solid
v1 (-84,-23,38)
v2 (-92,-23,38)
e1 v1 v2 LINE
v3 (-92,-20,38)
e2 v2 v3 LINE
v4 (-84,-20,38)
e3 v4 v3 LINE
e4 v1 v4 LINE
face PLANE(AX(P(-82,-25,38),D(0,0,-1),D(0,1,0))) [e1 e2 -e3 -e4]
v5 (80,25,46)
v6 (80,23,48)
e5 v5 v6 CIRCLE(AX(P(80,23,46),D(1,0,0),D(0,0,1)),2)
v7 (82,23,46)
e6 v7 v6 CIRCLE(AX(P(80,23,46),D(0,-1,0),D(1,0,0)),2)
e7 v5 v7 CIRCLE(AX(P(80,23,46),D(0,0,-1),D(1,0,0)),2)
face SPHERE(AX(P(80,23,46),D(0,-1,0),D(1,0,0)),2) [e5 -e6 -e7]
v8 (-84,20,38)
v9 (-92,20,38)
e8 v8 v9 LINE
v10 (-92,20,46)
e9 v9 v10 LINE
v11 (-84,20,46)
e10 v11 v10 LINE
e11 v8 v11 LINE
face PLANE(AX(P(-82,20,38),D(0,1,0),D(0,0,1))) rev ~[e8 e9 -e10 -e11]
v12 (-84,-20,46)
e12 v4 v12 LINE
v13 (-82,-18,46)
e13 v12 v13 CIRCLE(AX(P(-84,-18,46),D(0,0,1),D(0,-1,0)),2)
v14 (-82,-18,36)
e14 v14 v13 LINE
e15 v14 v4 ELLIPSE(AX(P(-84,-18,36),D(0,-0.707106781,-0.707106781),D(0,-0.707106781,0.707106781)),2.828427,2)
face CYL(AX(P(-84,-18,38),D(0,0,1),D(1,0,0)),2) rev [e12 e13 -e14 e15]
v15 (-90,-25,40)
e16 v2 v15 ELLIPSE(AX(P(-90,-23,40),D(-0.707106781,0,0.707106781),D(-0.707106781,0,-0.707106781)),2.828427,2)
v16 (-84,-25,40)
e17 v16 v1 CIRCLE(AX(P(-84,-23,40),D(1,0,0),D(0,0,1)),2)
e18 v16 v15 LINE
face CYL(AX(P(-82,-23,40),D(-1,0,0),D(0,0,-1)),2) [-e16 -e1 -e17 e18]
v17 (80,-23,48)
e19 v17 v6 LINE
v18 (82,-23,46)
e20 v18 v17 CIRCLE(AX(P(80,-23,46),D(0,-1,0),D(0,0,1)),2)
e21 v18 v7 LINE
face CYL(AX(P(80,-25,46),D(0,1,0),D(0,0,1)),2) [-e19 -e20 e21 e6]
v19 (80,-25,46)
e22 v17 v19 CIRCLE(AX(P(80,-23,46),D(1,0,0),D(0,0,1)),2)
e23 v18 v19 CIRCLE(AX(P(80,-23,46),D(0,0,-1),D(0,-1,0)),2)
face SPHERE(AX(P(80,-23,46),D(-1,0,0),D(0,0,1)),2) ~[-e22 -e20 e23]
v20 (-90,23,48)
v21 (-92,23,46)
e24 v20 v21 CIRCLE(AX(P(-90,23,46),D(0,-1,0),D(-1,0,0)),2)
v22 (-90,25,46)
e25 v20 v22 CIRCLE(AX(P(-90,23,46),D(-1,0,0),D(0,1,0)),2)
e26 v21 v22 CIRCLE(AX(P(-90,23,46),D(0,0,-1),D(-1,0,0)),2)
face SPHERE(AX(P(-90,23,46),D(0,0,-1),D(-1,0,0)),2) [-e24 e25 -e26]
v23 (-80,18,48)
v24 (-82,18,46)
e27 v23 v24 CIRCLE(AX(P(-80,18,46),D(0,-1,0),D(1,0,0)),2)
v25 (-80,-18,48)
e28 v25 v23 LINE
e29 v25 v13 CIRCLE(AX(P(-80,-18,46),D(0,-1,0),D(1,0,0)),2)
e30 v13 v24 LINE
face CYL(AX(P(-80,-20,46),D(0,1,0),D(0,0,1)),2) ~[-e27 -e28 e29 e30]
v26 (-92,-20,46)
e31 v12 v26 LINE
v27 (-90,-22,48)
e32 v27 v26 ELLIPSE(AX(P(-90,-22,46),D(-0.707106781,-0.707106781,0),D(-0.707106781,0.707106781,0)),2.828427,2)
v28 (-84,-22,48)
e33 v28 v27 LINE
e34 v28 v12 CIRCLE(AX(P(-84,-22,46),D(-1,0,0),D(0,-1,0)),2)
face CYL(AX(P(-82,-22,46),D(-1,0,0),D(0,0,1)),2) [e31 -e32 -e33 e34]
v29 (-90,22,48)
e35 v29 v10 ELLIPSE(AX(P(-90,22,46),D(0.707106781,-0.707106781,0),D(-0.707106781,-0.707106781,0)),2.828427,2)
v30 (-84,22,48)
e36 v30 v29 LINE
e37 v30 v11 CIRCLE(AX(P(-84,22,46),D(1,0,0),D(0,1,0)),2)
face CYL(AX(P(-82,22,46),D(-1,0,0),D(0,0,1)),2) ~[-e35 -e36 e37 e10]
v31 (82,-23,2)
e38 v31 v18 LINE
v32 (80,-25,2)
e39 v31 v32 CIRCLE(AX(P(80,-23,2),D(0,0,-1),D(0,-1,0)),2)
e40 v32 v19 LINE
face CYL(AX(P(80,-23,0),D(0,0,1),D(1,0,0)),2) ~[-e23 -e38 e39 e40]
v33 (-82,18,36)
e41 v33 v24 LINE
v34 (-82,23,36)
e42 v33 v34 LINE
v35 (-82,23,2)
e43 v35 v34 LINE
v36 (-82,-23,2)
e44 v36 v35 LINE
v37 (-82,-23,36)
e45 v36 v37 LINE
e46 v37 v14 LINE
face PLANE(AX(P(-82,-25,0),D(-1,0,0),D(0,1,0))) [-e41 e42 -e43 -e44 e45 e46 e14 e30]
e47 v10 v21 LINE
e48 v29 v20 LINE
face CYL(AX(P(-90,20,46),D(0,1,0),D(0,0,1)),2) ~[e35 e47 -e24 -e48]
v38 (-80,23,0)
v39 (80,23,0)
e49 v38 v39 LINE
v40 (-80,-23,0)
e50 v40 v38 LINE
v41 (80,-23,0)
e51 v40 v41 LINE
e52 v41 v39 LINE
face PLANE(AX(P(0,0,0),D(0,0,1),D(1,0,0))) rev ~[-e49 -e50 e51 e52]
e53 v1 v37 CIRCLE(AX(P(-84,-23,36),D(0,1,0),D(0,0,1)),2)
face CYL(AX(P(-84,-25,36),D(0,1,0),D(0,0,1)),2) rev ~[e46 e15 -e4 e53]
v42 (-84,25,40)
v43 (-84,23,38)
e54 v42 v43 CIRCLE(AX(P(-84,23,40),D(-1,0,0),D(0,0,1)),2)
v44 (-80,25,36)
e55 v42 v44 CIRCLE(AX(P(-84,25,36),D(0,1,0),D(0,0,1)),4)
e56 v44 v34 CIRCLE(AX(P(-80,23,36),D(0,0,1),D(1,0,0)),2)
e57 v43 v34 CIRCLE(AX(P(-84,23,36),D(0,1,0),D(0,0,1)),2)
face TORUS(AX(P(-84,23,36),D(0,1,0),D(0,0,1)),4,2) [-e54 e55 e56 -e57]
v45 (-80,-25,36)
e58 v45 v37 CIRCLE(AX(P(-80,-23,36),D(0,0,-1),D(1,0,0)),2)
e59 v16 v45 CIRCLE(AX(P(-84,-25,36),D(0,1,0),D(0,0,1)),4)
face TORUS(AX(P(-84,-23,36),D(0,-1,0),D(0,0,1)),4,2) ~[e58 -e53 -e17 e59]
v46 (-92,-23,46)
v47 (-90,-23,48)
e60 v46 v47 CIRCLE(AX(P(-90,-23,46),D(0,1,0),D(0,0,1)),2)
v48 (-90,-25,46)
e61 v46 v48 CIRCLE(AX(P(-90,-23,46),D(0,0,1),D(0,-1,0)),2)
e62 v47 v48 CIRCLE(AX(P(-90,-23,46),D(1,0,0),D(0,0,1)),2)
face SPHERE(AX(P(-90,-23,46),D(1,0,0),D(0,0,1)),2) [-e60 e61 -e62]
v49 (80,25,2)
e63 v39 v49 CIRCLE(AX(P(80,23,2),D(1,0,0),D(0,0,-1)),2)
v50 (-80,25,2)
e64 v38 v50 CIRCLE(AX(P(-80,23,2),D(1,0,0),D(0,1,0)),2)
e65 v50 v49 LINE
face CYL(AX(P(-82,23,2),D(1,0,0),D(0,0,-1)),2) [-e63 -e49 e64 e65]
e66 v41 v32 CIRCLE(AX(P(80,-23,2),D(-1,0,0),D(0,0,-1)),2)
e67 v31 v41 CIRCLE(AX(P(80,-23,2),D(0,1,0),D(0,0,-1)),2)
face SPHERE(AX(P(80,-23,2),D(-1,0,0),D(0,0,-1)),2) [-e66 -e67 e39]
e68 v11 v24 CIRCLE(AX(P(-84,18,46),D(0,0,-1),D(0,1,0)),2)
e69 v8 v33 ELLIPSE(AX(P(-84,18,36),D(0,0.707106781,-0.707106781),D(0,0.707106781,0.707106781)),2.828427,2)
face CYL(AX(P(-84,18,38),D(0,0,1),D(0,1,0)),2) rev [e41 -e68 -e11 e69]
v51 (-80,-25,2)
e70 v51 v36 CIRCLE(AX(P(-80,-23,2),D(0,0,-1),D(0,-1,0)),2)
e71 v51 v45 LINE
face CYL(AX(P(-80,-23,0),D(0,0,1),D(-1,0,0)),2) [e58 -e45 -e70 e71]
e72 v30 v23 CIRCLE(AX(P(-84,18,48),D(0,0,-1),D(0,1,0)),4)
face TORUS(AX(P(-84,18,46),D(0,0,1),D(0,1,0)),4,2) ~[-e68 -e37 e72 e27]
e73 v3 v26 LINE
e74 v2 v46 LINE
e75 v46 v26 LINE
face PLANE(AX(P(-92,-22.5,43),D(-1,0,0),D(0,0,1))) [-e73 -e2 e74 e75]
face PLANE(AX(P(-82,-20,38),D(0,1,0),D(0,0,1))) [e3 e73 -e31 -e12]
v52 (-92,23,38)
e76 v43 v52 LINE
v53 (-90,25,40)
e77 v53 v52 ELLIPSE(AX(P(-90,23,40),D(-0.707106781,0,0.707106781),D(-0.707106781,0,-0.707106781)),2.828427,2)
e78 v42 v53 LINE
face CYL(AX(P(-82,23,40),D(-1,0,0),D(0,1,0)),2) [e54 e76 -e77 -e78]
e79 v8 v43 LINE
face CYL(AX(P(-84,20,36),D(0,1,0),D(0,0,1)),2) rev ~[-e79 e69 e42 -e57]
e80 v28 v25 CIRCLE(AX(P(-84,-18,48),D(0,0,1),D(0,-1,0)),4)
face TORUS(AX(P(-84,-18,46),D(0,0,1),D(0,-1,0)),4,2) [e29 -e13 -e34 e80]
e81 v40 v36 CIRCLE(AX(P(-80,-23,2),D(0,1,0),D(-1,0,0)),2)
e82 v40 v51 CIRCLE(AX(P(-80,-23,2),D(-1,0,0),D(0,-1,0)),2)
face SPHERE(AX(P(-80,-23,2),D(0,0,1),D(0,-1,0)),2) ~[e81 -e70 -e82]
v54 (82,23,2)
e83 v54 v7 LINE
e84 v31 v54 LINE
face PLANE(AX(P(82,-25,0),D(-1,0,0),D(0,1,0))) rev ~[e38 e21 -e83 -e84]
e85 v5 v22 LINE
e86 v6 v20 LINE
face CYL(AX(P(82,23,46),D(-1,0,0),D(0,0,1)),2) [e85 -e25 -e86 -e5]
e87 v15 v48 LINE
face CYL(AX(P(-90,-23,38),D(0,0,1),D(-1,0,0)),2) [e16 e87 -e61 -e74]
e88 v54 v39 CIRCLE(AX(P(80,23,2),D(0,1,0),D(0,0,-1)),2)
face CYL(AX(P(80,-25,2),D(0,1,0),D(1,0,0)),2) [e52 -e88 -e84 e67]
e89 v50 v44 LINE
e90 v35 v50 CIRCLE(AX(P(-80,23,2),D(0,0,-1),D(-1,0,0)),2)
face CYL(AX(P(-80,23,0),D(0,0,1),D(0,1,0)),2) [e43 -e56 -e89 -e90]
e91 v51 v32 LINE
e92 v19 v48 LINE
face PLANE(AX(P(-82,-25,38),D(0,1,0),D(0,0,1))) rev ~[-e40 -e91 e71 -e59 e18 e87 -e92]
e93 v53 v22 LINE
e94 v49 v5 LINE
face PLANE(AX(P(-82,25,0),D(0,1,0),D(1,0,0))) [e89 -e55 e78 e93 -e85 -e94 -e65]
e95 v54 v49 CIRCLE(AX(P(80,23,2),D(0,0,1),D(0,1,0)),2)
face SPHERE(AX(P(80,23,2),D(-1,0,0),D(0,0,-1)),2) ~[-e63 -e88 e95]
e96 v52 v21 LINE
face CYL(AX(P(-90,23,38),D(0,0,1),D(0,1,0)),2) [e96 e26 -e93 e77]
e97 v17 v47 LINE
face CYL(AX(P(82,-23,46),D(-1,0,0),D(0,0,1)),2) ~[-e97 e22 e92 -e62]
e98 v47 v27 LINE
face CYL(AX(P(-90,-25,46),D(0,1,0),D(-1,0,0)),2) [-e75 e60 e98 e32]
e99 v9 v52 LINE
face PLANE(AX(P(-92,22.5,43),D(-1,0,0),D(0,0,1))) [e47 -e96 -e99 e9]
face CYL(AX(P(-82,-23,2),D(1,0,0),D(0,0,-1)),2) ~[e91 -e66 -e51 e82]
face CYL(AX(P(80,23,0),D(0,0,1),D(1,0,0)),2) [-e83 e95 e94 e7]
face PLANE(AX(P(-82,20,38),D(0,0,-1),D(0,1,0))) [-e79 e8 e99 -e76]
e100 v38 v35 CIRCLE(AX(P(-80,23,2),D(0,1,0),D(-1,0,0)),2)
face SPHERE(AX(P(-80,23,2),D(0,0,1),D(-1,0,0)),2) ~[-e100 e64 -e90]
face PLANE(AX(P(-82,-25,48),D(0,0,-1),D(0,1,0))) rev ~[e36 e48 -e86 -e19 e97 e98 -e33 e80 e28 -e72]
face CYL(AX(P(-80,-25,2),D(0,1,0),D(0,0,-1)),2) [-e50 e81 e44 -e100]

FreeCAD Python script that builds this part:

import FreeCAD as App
import Part
import Sketcher
Q = App.Units.Quantity


def edges_at(feature, points):
    """Names of the edges that pass closest to the given points."""
    edges = feature.Shape.Edges
    near = lambda p: min(range(len(edges)), key=lambda i: edges[i].distToShape(Part.Vertex(*p))[0])
    return sorted({f"Edge{near(p) + 1}" for p in points})


def add_polygon(sketch, points):
    """Adds a closed chain of lines whose ends are joined by coincident constraints."""
    first, n = sketch.GeometryCount, len(points)
    for a, b in zip(points, points[1:] + points[:1]):
        sketch.addGeometry(Part.LineSegment(App.Vector(*a, 0), App.Vector(*b, 0)), False)
    for i in range(n):
        sketch.addConstraint(Sketcher.Constraint("Coincident", first + i, 2, first + (i + 1) % n, 1))

doc = App.newDocument("Part")
body = doc.addObject("PartDesign::Body", "Body")

# Sketch on XY plane
sketch1 = body.newObject("Sketcher::SketchObject", "Sketch")
sketch1.AttachmentSupport = (doc.getObject("XY_Plane"), [""])
sketch1.MapMode = "FlatFace"
add_polygon(sketch1, [(-82, 25), (-82, -25), (82, -25), (82, 25)])  # lines 0-3
sketch1.addConstraint(Sketcher.Constraint("Vertical", 0))
sketch1.addConstraint(Sketcher.Constraint("Horizontal", 1))
sketch1.addConstraint(Sketcher.Constraint("Vertical", 2))
sketch1.addConstraint(Sketcher.Constraint("Horizontal", 3))
sketch1.addConstraint(Sketcher.Constraint("Symmetric", 0, 2, 2, 2, -1, 1))
sketch1.addConstraint(Sketcher.Constraint("DistanceX", 1, 1, 1, 2, Q("164 mm")))
sketch1.addConstraint(Sketcher.Constraint("DistanceY", 0, 2, 0, 1, Q("50 mm")))
pad1 = body.newObject("PartDesign::Pad", "Pad")
pad1.Profile = sketch1
pad1.Length = 48

# Sketch on YZ plane
sketch2 = body.newObject("Sketcher::SketchObject", "Sketch001")
sketch2.AttachmentSupport = (doc.getObject("YZ_Plane"), [""])
sketch2.MapMode = "FlatFace"
sketch2.AttachmentOffset = App.Placement(App.Vector(0, 0, -82), App.Rotation())
add_polygon(sketch2, [(-20, 38), (-25, 38), (-25, 48), (-20, 48)])  # lines 0-3
add_polygon(sketch2, [(25, 38), (20, 38), (20, 48), (25, 48)])  # lines 4-7
sketch2.addConstraint(Sketcher.Constraint("Horizontal", 0))
sketch2.addConstraint(Sketcher.Constraint("Vertical", 1))
sketch2.addConstraint(Sketcher.Constraint("Horizontal", 2))
sketch2.addConstraint(Sketcher.Constraint("Vertical", 3))
sketch2.addConstraint(Sketcher.Constraint("Horizontal", 4))
sketch2.addConstraint(Sketcher.Constraint("Vertical", 5))
sketch2.addConstraint(Sketcher.Constraint("Horizontal", 6))
sketch2.addConstraint(Sketcher.Constraint("Vertical", 7))
sketch2.addConstraint(Sketcher.Constraint("Symmetric", 3, 2, 4, 2, -2))
sketch2.addConstraint(Sketcher.Constraint("Symmetric", 1, 2, 6, 2, -2))
sketch2.addConstraint(Sketcher.Constraint("DistanceX", 0, 2, 0, 1, Q("5 mm")))
sketch2.addConstraint(Sketcher.Constraint("DistanceY", 1, 1, 1, 2, Q("10 mm")))
sketch2.addConstraint(Sketcher.Constraint("DistanceX", 0, 2, -1, 1, Q("25 mm")))
sketch2.addConstraint(Sketcher.Constraint("DistanceY", -1, 1, 0, 2, Q("38 mm")))
pad2 = body.newObject("PartDesign::Pad", "Pad001")
pad2.Profile = sketch2
pad2.Length = 10
pad2.Reversed = True
doc.recompute()

fillet = body.newObject("PartDesign::Fillet", "Fillet")
fillet.Base = (pad2, edges_at(pad2, [
    (-82, 0, 48),
    (-82, 25, 19),
    (-82, 22.5, 38),
    (-87, 25, 38),
    (-5, -25, 48),
    (-82, 20, 43),
    (-87, 20, 48),
    (-92, 25, 43),
    (-92, 22.5, 48),
    (-82, -25, 19),
    (-82, -20, 43),
    (-87, -20, 48),
    (-82, -22.5, 38),
    (-87, -25, 38),
    (-92, -22.5, 48),
    (-92, -25, 43),
    (82, 0, 48),
    (0, -25, 0),
    (-82, 0, 0),
    (0, 25, 0),
    (82, 0, 0),
    (82, -25, 24),
    (82, 25, 24),
    (-5, 25, 48),
]))
fillet.Radius = 2

doc.recompute()
